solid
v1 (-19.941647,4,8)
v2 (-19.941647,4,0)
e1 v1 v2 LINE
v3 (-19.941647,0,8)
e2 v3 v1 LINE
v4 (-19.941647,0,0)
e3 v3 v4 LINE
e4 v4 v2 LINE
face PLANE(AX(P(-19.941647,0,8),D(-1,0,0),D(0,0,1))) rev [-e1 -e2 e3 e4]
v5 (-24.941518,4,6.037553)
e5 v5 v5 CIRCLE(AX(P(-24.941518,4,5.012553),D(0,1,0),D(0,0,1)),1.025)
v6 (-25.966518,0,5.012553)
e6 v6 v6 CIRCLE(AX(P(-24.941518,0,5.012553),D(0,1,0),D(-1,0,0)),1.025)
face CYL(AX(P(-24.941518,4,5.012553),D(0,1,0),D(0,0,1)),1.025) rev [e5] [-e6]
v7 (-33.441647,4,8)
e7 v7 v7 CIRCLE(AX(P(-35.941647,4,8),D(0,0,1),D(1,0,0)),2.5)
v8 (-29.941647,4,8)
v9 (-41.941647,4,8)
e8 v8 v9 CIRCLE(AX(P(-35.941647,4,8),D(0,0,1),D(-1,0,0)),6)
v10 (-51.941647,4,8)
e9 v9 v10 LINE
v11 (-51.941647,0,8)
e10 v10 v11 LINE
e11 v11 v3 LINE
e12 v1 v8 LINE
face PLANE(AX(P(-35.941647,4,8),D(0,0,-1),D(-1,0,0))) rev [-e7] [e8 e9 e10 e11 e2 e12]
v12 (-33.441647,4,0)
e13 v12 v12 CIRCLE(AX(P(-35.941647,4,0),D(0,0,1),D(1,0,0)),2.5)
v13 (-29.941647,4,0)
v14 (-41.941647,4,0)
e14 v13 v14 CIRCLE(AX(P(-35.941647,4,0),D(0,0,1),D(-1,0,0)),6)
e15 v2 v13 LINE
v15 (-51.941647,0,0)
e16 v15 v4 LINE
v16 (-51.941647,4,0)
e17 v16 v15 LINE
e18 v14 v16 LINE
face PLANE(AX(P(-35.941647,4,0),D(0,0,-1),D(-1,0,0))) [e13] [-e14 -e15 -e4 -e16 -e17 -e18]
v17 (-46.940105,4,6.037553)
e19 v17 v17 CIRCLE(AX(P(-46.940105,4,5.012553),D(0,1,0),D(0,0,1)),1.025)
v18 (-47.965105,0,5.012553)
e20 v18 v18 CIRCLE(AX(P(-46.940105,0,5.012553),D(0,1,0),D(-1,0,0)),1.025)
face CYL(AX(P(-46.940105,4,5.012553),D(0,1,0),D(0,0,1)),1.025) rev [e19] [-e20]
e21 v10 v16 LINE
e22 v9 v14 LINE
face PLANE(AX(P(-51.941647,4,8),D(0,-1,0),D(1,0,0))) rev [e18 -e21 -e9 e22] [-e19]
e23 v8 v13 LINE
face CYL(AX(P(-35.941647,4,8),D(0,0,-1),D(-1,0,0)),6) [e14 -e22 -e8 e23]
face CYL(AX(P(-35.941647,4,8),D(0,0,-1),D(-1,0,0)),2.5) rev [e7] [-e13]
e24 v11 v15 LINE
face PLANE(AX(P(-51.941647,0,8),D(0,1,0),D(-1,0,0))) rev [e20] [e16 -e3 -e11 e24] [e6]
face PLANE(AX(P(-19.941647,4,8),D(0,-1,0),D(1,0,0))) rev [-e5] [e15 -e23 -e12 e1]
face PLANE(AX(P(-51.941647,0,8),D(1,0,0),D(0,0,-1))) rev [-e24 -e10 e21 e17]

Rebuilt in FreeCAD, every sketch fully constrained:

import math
import FreeCAD as App
import Part
import Sketcher
from FreeCAD import Vector
Q = App.Units.Quantity

doc = App.newDocument("Part")
body = doc.addObject("PartDesign::Body", "Body")

sketch1 = body.newObject("Sketcher::SketchObject", "Sketch")
sketch1.AttachmentSupport = (doc.getObject("XY_Plane"), [""])
sketch1.MapMode = "FlatFace"
sketch1.addGeometry(Part.LineSegment(Vector(-51.9, 0, 0), Vector(-19.9, 0, 0)), False)
sketch1.addGeometry(Part.LineSegment(Vector(-19.9, 0, 0), Vector(-19.9, 4, 0)), False)
sketch1.addGeometry(Part.LineSegment(Vector(-19.9, 4, 0), Vector(-29.9, 4, 0)), False)
sketch1.addGeometry(Part.ArcOfCircle(Part.Circle(Vector(-35.9, 4, 0), Vector(0, 0, 1), 6), math.radians(0), math.radians(180)), False)
sketch1.addGeometry(Part.LineSegment(Vector(-41.9, 4, 0), Vector(-51.9, 4, 0)), False)
sketch1.addGeometry(Part.LineSegment(Vector(-51.9, 4, 0), Vector(-51.9, 0, 0)), False)
sketch1.addGeometry(Part.Circle(Vector(-35.9, 4, 0), Vector(0, 0, 1), 2.5), False)
sketch1.addConstraint(Sketcher.Constraint("Coincident", 0, 2, 1, 1))
sketch1.addConstraint(Sketcher.Constraint("Coincident", 1, 2, 2, 1))
sketch1.addConstraint(Sketcher.Constraint("Coincident", 2, 2, 3, 1))
sketch1.addConstraint(Sketcher.Constraint("Coincident", 3, 2, 4, 1))
sketch1.addConstraint(Sketcher.Constraint("Coincident", 4, 2, 5, 1))
sketch1.addConstraint(Sketcher.Constraint("Coincident", 5, 2, 0, 1))
sketch1.addConstraint(Sketcher.Constraint("Horizontal", 0))
sketch1.addConstraint(Sketcher.Constraint("Vertical", 1))
sketch1.addConstraint(Sketcher.Constraint("Horizontal", 2))
sketch1.addConstraint(Sketcher.Constraint("Horizontal", 4))
sketch1.addConstraint(Sketcher.Constraint("Vertical", 5))
sketch1.addConstraint(Sketcher.Constraint("Coincident", 6, 3, 3, 3))
sketch1.addConstraint(Sketcher.Constraint("PointOnObject", 0, 2, -1))
sketch1.addConstraint(Sketcher.Constraint("Horizontal", 6, 3, 1, 2))
sketch1.addConstraint(Sketcher.Constraint("Horizontal", 2, 2, 3, 2))
sketch1.addConstraint(Sketcher.Constraint("Equal", 2, 4))
sketch1.addConstraint(Sketcher.Constraint("Diameter", 6, Q("5 mm")))
sketch1.addConstraint(Sketcher.Constraint("Radius", 3, Q("6 mm")))
sketch1.addConstraint(Sketcher.Constraint("DistanceX", 0, 1, 0, 2, Q("32 mm")))
sketch1.addConstraint(Sketcher.Constraint("DistanceY", 1, 1, 1, 2, Q("4 mm")))
sketch1.addConstraint(Sketcher.Constraint("DistanceX", 3, 3, -1, 1, Q("35.941647 mm")))
pad1 = body.newObject("PartDesign::Pad", "Pad")
pad1.Profile = sketch1
pad1.Length = 8

sketch2 = body.newObject("Sketcher::SketchObject", "Sketch001")
sketch2.AttachmentSupport = (doc.getObject("XZ_Plane"), [""])
sketch2.MapMode = "FlatFace"
sketch2.AttachmentOffset = App.Placement(Vector(0, 0, -4), App.Rotation())
sketch2.addGeometry(Part.Circle(Vector(-46.9, 5, 0), Vector(0, 0, 1), 1), False)
sketch2.addGeometry(Part.Circle(Vector(-24.9, 5, 0), Vector(0, 0, 1), 1), False)
sketch2.addConstraint(Sketcher.Constraint("Equal", 0, 1))
sketch2.addConstraint(Sketcher.Constraint("Horizontal", 0, 3, 1, 3))
sketch2.addConstraint(Sketcher.Constraint("Diameter", 0, Q("2.05 mm")))
sketch2.addConstraint(Sketcher.Constraint("DistanceX", 0, 3, -1, 1, Q("46.940105 mm")))
sketch2.addConstraint(Sketcher.Constraint("DistanceY", -1, 1, 0, 3, Q("5.012553 mm")))
sketch2.addConstraint(Sketcher.Constraint("DistanceX", 1, 3, -1, 1, Q("24.941518 mm")))
doc.recompute()
hole = body.newObject("PartDesign::Hole", "Hole")
hole.Profile = sketch2
hole.ThreadType = "None"
hole.Diameter = 2.05
hole.DepthType = "Dimension"
hole.Depth = 10
hole.DrillPoint = "Angled"
hole.DrillPointAngle = 118
hole.Reversed = True

doc.recompute()
